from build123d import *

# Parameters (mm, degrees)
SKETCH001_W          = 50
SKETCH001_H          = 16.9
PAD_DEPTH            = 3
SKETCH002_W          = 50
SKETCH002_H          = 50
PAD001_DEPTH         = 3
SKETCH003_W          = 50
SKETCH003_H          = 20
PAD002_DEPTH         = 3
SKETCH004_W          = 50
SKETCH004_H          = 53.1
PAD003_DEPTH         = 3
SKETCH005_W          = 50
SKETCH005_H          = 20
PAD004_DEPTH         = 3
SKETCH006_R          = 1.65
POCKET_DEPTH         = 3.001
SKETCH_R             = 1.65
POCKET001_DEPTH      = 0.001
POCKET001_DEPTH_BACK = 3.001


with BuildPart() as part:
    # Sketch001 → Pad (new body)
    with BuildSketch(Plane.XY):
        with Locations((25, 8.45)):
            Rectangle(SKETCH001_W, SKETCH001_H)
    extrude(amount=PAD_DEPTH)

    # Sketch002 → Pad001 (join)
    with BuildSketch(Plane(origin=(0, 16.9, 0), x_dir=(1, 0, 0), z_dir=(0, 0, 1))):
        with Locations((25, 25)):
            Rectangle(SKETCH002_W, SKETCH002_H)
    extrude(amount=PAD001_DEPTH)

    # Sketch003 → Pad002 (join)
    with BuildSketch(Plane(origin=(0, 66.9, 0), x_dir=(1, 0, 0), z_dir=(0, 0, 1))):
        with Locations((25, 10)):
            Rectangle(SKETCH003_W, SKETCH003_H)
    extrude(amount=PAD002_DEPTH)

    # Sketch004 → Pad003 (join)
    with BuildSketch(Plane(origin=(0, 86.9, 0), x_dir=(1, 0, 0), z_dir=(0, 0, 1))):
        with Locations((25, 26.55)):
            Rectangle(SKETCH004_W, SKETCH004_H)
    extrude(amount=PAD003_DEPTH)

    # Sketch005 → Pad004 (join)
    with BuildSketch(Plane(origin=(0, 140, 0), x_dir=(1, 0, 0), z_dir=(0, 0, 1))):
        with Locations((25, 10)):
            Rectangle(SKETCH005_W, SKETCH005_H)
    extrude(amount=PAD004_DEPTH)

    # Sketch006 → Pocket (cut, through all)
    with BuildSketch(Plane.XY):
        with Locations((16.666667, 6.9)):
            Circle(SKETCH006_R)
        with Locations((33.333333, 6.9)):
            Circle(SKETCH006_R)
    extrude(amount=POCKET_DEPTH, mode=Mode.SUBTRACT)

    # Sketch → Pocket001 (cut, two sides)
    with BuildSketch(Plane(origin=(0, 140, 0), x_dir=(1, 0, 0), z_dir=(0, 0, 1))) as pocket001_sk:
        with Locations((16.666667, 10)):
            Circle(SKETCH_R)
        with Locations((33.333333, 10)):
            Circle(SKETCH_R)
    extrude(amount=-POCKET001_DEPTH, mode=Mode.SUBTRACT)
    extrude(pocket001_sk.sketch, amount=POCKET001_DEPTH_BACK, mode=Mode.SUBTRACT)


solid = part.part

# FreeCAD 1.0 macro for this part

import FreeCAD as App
import Part
import Sketcher

doc = App.newDocument("Part")
body = doc.addObject("PartDesign::Body", "Body")

sketch1 = body.newObject("Sketcher::SketchObject", "Sketch")
sketch1.AttachmentSupport = (doc.getObject("XY_Plane"), [""])
sketch1.MapMode = "FlatFace"
sketch1.addGeometry([
    Part.LineSegment(App.Vector(0, 17, 0), App.Vector(0, 0, 0)),
    Part.LineSegment(App.Vector(0, 0, 0), App.Vector(50, 0, 0)),
    Part.LineSegment(App.Vector(50, 0, 0), App.Vector(50, 17, 0)),
    Part.LineSegment(App.Vector(50, 17, 0), App.Vector(0, 17, 0)),
], False)
sketch1.addConstraint([
    Sketcher.Constraint("Coincident", 0, 2, 1, 1),
    Sketcher.Constraint("Coincident", 1, 2, 2, 1),
    Sketcher.Constraint("Coincident", 2, 2, 3, 1),
    Sketcher.Constraint("Coincident", 3, 2, 0, 1),
    Sketcher.Constraint("Vertical", 0),
    Sketcher.Constraint("Horizontal", 1),
    Sketcher.Constraint("Vertical", 2),
    Sketcher.Constraint("Horizontal", 3),
    Sketcher.Constraint("Coincident", 0, 2, -1, 1),
    Sketcher.Constraint("DistanceX", 1, 1, 1, 2, 50.0),
    Sketcher.Constraint("DistanceY", 0, 2, 0, 1, 16.9),
])
pad1 = body.newObject("PartDesign::Pad", "Pad")
pad1.Profile = sketch1
pad1.Length = 3

sketch2 = body.newObject("Sketcher::SketchObject", "Sketch001")
sketch2.AttachmentSupport = (doc.getObject("XY_Plane"), [""])
sketch2.MapMode = "FlatFace"
sketch2.addGeometry([
    Part.LineSegment(App.Vector(0, 67, 0), App.Vector(0, 17, 0)),
    Part.LineSegment(App.Vector(0, 17, 0), App.Vector(50, 17, 0)),
    Part.LineSegment(App.Vector(50, 17, 0), App.Vector(50, 67, 0)),
    Part.LineSegment(App.Vector(50, 67, 0), App.Vector(0, 67, 0)),
], False)
sketch2.addConstraint([
    Sketcher.Constraint("Coincident", 0, 2, 1, 1),
    Sketcher.Constraint("Coincident", 1, 2, 2, 1),
    Sketcher.Constraint("Coincident", 2, 2, 3, 1),
    Sketcher.Constraint("Coincident", 3, 2, 0, 1),
    Sketcher.Constraint("Vertical", 0),
    Sketcher.Constraint("Horizontal", 1),
    Sketcher.Constraint("Vertical", 2),
    Sketcher.Constraint("Horizontal", 3),
    Sketcher.Constraint("PointOnObject", 0, 2, -2),
    Sketcher.Constraint("Equal", 3, 0),
    Sketcher.Constraint("DistanceX", 1, 1, 1, 2, 50.0),
    Sketcher.Constraint("DistanceY", -1, 1, 0, 2, 16.9),
])
pad2 = body.newObject("PartDesign::Pad", "Pad001")
pad2.Profile = sketch2
pad2.Length = 3

sketch3 = body.newObject("Sketcher::SketchObject", "Sketch002")
sketch3.AttachmentSupport = (doc.getObject("XY_Plane"), [""])
sketch3.MapMode = "FlatFace"
sketch3.addGeometry([
    Part.LineSegment(App.Vector(0, 87, 0), App.Vector(0, 67, 0)),
    Part.LineSegment(App.Vector(0, 67, 0), App.Vector(50, 67, 0)),
    Part.LineSegment(App.Vector(50, 67, 0), App.Vector(50, 87, 0)),
    Part.LineSegment(App.Vector(50, 87, 0), App.Vector(0, 87, 0)),
], False)
sketch3.addConstraint([
    Sketcher.Constraint("Coincident", 0, 2, 1, 1),
    Sketcher.Constraint("Coincident", 1, 2, 2, 1),
    Sketcher.Constraint("Coincident", 2, 2, 3, 1),
    Sketcher.Constraint("Coincident", 3, 2, 0, 1),
    Sketcher.Constraint("Vertical", 0),
    Sketcher.Constraint("Horizontal", 1),
    Sketcher.Constraint("Vertical", 2),
    Sketcher.Constraint("Horizontal", 3),
    Sketcher.Constraint("PointOnObject", 0, 2, -2),
    Sketcher.Constraint("DistanceX", 1, 1, 1, 2, 50.0),
    Sketcher.Constraint("DistanceY", 0, 2, 0, 1, 20.0),
    Sketcher.Constraint("DistanceY", -1, 1, 0, 2, 66.9),
])
pad3 = body.newObject("PartDesign::Pad", "Pad002")
pad3.Profile = sketch3
pad3.Length = 3

sketch4 = body.newObject("Sketcher::SketchObject", "Sketch003")
sketch4.AttachmentSupport = (doc.getObject("XY_Plane"), [""])
sketch4.MapMode = "FlatFace"
sketch4.addGeometry([
    Part.LineSegment(App.Vector(0, 140, 0), App.Vector(0, 87, 0)),
    Part.LineSegment(App.Vector(0, 87, 0), App.Vector(50, 87, 0)),
    Part.LineSegment(App.Vector(50, 87, 0), App.Vector(50, 140, 0)),
    Part.LineSegment(App.Vector(50, 140, 0), App.Vector(0, 140, 0)),
], False)
sketch4.addConstraint([
    Sketcher.Constraint("Coincident", 0, 2, 1, 1),
    Sketcher.Constraint("Coincident", 1, 2, 2, 1),
    Sketcher.Constraint("Coincident", 2, 2, 3, 1),
    Sketcher.Constraint("Coincident", 3, 2, 0, 1),
    Sketcher.Constraint("Vertical", 0),
    Sketcher.Constraint("Horizontal", 1),
    Sketcher.Constraint("Vertical", 2),
    Sketcher.Constraint("Horizontal", 3),
    Sketcher.Constraint("PointOnObject", 0, 2, -2),
    Sketcher.Constraint("DistanceX", 1, 1, 1, 2, 50.0),
    Sketcher.Constraint("DistanceY", 0, 2, 0, 1, 53.1),
    Sketcher.Constraint("DistanceY", -1, 1, 2, 2, 140.0),
])
pad4 = body.newObject("PartDesign::Pad", "Pad003")
pad4.Profile = sketch4
pad4.Length = 3

sketch5 = body.newObject("Sketcher::SketchObject", "Sketch004")
sketch5.AttachmentSupport = (doc.getObject("XY_Plane"), [""])
sketch5.MapMode = "FlatFace"
sketch5.addGeometry([
    Part.LineSegment(App.Vector(0, 160, 0), App.Vector(0, 140, 0)),
    Part.LineSegment(App.Vector(0, 140, 0), App.Vector(50, 140, 0)),
    Part.LineSegment(App.Vector(50, 140, 0), App.Vector(50, 160, 0)),
    Part.LineSegment(App.Vector(50, 160, 0), App.Vector(0, 160, 0)),
], False)
sketch5.addConstraint([
    Sketcher.Constraint("Coincident", 0, 2, 1, 1),
    Sketcher.Constraint("Coincident", 1, 2, 2, 1),
    Sketcher.Constraint("Coincident", 2, 2, 3, 1),
    Sketcher.Constraint("Coincident", 3, 2, 0, 1),
    Sketcher.Constraint("Vertical", 0),
    Sketcher.Constraint("Horizontal", 1),
    Sketcher.Constraint("Vertical", 2),
    Sketcher.Constraint("Horizontal", 3),
    Sketcher.Constraint("PointOnObject", 0, 2, -2),
    Sketcher.Constraint("DistanceX", 1, 1, 1, 2, 50.0),
    Sketcher.Constraint("DistanceY", 0, 2, 0, 1, 20.0),
    Sketcher.Constraint("DistanceY", -1, 1, 0, 2, 140.0),
])
pad5 = body.newObject("PartDesign::Pad", "Pad004")
pad5.Profile = sketch5
pad5.Length = 3

sketch6 = body.newObject("Sketcher::SketchObject", "Sketch005")
sketch6.AttachmentSupport = (doc.getObject("XY_Plane"), [""])
sketch6.MapMode = "FlatFace"
sketch6.addGeometry([
    Part.Circle(App.Vector(16.7, 6.9, 0), App.Vector(0, 0, 1), 1.6),
    Part.Circle(App.Vector(33.3, 6.9, 0), App.Vector(0, 0, 1), 1.6),
], False)
sketch6.addConstraint([
    Sketcher.Constraint("Equal", 0, 1),
    Sketcher.Constraint("Horizontal", 0, 3, 1, 3),
    Sketcher.Constraint("Diameter", 0, 3.3),
    Sketcher.Constraint("DistanceY", -1, 1, 0, 3, 6.9),
    Sketcher.Constraint("DistanceX", -1, 1, 0, 3, 16.666667),
    Sketcher.Constraint("DistanceX", -1, 1, 1, 3, 33.333333),
])
pocket1 = body.newObject("PartDesign::Pocket", "Pocket")
pocket1.Profile = sketch6
pocket1.Type = "ThroughAll"
pocket1.Reversed = True

sketch7 = body.newObject("Sketcher::SketchObject", "Sketch006")
sketch7.AttachmentSupport = (doc.getObject("XY_Plane"), [""])
sketch7.MapMode = "FlatFace"
sketch7.addGeometry([
    Part.Circle(App.Vector(16.7, 150, 0), App.Vector(0, 0, 1), 1.6),
    Part.Circle(App.Vector(33.3, 150, 0), App.Vector(0, 0, 1), 1.6),
], False)
sketch7.addConstraint([
    Sketcher.Constraint("Equal", 0, 1),
    Sketcher.Constraint("Horizontal", 0, 3, 1, 3),
    Sketcher.Constraint("Diameter", 0, 3.3),
    Sketcher.Constraint("DistanceY", -1, 1, 0, 3, 150.0),
    Sketcher.Constraint("DistanceX", -1, 1, 0, 3, 16.666667),
    Sketcher.Constraint("DistanceX", -1, 1, 1, 3, 33.333333),
])
pocket2 = body.newObject("PartDesign::Pocket", "Pocket001")
pocket2.Profile = sketch7
pocket2.Type = "ThroughAll"
pocket2.Midplane = True

doc.recompute()
